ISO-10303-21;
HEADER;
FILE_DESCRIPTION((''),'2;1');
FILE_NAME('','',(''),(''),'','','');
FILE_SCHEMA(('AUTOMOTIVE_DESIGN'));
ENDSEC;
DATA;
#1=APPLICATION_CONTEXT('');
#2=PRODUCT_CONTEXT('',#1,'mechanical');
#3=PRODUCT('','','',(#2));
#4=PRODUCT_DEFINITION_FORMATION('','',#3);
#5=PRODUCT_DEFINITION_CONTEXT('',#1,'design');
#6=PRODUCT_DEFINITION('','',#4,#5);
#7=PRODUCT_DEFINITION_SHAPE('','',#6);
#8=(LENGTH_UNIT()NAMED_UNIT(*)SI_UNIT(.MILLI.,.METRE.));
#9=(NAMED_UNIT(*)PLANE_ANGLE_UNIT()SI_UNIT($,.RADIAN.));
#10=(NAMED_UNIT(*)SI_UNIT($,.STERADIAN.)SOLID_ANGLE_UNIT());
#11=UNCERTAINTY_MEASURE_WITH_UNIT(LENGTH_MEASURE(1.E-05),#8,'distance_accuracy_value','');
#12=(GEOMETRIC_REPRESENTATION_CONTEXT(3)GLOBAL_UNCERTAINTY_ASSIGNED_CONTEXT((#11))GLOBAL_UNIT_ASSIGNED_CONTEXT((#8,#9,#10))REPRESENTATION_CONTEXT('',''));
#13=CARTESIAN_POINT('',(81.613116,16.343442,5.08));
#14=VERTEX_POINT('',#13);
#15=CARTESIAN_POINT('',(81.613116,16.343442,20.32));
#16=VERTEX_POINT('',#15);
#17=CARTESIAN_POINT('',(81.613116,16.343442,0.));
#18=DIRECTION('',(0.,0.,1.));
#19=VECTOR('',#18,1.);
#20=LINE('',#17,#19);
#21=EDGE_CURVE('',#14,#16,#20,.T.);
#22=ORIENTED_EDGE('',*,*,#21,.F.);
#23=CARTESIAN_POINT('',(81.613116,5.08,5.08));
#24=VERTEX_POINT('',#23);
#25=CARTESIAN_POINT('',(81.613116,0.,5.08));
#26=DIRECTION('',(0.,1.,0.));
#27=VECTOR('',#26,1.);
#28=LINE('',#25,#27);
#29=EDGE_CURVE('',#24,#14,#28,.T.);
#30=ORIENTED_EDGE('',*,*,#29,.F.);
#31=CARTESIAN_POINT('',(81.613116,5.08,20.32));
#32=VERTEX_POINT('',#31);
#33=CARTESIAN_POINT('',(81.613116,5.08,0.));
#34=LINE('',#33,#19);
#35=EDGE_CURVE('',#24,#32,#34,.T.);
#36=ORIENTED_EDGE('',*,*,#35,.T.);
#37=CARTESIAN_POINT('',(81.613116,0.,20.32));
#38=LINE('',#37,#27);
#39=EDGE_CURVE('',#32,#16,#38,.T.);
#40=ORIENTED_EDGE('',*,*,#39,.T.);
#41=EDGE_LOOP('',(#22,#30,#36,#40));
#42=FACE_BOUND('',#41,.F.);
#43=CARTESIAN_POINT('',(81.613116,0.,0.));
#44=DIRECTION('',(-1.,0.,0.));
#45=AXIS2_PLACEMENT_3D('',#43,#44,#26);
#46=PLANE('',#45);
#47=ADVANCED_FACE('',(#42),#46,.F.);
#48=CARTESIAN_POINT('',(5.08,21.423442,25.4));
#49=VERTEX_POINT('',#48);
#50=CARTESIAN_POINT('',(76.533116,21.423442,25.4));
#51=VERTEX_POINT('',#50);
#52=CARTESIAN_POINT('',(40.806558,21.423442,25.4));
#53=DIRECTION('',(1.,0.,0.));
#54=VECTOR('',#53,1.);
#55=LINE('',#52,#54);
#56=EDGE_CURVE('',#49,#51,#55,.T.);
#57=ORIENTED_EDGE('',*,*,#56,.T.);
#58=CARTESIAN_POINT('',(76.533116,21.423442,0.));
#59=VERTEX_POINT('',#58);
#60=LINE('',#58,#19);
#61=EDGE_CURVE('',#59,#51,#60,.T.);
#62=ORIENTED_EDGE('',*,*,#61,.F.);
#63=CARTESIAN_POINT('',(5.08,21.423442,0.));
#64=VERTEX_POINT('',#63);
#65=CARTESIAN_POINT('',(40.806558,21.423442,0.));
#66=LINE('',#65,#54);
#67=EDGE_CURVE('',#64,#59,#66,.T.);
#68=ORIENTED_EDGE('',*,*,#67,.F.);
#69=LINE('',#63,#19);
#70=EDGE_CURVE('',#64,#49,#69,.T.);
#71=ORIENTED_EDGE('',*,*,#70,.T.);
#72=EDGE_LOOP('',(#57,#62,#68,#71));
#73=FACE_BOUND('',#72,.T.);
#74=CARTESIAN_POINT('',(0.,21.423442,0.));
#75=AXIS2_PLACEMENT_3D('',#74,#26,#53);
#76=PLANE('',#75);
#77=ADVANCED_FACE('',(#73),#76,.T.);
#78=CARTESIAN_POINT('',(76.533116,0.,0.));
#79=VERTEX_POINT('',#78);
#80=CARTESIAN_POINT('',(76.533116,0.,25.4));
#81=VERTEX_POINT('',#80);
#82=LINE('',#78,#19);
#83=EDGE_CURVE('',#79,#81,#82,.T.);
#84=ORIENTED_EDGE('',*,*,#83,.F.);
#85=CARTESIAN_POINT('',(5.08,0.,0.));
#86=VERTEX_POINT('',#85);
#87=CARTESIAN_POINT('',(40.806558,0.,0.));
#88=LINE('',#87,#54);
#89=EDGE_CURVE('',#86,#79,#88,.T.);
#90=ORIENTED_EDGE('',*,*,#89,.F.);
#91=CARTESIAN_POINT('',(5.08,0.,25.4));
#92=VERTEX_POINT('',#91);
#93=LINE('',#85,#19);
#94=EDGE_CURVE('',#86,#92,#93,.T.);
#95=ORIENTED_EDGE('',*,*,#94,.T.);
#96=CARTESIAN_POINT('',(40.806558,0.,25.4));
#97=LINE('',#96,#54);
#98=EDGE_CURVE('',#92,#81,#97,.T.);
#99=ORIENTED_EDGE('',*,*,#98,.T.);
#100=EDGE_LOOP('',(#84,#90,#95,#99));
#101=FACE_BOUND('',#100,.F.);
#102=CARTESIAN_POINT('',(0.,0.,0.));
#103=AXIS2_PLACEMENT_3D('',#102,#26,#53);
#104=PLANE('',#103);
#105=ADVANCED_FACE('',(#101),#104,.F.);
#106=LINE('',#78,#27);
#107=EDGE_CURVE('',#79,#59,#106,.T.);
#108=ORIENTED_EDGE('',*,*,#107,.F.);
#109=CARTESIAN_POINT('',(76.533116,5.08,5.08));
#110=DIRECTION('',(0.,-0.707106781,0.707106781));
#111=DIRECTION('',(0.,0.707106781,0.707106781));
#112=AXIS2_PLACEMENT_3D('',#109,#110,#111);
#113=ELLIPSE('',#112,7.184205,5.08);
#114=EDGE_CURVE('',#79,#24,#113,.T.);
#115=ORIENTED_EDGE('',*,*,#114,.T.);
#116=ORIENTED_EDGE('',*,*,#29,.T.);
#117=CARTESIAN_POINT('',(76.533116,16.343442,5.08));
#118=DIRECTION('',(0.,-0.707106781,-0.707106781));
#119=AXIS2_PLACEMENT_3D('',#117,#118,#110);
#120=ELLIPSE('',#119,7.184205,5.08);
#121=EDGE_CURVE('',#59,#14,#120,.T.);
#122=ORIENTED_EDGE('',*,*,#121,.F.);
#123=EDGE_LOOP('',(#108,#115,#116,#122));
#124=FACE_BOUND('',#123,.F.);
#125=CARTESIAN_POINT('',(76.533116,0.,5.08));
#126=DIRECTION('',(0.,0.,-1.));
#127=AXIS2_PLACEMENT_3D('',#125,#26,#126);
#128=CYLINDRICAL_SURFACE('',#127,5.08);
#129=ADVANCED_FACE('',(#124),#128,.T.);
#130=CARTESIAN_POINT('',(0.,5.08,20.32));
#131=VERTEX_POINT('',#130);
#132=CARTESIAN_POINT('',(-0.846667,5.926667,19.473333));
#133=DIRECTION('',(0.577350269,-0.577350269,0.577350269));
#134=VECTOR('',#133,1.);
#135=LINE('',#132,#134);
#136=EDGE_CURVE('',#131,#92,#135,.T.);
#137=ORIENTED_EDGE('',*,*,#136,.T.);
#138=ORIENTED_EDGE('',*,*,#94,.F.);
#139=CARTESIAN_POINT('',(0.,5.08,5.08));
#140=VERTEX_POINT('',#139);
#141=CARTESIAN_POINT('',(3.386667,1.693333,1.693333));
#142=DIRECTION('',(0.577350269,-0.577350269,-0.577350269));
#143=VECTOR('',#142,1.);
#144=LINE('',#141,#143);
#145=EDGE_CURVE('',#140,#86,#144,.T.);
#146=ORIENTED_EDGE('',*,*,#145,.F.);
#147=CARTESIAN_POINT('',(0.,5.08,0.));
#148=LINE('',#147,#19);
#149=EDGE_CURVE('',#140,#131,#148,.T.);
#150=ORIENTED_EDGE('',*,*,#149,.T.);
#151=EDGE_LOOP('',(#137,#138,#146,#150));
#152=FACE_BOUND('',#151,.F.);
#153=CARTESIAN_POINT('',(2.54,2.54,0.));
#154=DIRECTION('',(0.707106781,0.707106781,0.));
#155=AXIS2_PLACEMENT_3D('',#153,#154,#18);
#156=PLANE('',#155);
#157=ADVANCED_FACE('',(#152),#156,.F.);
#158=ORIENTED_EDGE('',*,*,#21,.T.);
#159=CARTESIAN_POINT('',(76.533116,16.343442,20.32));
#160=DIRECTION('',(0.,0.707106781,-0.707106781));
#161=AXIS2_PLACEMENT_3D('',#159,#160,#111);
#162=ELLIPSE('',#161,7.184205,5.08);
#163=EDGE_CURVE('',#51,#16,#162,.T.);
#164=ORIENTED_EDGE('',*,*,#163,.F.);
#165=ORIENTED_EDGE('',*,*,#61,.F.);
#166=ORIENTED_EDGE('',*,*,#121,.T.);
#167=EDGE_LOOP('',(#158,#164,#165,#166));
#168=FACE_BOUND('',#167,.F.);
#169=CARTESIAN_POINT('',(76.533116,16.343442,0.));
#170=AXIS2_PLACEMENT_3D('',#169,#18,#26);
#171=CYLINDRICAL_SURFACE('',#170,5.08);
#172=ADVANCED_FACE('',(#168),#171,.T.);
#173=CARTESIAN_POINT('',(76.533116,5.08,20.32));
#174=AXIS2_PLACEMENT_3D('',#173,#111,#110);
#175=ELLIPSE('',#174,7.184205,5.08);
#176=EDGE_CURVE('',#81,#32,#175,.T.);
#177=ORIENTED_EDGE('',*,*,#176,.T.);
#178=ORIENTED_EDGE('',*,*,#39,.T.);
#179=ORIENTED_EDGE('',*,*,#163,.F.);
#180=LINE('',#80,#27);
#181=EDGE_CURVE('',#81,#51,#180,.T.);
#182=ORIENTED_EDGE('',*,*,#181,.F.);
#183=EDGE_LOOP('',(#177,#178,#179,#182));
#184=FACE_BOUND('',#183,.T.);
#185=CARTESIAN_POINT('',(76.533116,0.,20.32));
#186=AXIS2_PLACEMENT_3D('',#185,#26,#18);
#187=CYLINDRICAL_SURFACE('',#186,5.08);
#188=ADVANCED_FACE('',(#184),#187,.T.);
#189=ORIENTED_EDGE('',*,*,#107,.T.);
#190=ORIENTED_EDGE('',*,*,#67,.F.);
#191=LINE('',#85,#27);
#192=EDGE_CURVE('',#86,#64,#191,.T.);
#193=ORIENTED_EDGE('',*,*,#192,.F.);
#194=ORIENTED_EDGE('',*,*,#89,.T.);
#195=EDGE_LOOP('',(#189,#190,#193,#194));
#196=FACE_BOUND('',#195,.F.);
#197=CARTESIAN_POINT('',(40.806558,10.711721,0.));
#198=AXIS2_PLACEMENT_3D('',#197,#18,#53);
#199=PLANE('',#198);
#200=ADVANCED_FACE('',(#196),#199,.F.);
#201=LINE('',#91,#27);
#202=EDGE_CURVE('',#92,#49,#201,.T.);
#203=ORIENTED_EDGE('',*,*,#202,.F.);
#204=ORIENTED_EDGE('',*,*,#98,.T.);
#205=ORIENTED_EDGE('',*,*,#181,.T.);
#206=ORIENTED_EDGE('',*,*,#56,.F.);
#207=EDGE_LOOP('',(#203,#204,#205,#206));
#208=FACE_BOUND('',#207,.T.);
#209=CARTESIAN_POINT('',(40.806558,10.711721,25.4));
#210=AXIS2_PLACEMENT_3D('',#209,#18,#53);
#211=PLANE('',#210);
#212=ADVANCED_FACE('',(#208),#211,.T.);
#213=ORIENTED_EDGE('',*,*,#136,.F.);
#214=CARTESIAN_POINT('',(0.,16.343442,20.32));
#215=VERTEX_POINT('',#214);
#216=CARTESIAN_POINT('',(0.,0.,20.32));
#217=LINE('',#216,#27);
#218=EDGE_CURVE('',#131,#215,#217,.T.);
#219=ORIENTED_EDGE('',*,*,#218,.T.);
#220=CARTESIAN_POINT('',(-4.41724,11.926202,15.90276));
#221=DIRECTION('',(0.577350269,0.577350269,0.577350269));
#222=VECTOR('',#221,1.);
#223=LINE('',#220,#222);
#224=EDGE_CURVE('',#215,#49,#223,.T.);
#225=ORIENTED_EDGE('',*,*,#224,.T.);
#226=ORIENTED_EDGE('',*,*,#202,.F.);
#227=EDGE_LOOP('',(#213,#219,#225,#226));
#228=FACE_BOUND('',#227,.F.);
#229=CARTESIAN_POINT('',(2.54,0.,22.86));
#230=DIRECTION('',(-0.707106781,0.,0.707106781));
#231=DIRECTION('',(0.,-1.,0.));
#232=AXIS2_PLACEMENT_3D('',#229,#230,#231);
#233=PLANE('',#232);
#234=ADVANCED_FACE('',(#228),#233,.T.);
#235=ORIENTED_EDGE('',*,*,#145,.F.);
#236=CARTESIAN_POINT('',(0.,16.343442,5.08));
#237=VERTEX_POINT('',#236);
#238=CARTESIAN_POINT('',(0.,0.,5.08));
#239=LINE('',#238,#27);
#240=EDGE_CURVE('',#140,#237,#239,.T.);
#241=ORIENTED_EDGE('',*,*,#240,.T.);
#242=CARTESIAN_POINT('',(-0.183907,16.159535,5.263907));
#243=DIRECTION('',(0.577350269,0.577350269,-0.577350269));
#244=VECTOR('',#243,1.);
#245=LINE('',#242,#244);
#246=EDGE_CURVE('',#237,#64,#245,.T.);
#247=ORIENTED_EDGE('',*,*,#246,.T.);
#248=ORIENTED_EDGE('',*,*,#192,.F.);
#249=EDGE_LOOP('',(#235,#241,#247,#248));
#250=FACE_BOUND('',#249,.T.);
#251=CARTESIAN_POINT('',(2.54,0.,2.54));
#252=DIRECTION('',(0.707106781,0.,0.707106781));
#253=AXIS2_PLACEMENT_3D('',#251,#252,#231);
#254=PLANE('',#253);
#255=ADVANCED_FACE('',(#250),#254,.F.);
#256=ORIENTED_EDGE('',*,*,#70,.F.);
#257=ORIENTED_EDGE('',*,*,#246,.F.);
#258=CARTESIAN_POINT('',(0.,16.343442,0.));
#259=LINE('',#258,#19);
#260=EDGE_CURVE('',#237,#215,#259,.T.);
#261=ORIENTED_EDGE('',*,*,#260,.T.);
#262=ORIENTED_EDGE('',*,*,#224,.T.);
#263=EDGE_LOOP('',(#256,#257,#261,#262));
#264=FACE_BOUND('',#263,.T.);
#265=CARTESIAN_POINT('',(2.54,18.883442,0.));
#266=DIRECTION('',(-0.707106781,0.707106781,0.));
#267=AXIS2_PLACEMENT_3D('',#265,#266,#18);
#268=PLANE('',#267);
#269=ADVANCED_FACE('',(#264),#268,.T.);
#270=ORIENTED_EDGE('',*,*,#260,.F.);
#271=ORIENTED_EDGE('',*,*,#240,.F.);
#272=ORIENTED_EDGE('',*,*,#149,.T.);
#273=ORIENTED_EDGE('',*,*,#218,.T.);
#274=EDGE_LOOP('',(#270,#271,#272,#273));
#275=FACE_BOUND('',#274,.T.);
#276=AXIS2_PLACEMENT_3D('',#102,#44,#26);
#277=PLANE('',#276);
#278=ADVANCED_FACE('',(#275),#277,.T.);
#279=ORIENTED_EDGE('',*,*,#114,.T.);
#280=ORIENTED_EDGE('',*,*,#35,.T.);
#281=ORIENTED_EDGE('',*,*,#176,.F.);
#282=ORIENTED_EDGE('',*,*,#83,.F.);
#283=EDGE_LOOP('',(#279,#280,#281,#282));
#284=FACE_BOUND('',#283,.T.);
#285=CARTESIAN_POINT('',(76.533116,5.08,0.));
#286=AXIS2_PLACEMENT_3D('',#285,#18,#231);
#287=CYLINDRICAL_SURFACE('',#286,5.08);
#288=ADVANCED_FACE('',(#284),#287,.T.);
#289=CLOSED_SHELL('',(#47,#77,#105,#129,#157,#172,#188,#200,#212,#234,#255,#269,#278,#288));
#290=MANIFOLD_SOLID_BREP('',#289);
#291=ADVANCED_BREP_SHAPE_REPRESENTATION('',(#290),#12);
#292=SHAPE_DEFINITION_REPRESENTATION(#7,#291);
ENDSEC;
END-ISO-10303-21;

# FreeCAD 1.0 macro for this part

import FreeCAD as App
import Part
import Sketcher
from FreeCAD import Vector


def edges_at(feature, points):
    """Names of the edges that pass closest to the given points."""
    edges = feature.Shape.Edges
    near = lambda p: min(range(len(edges)), key=lambda i: edges[i].distToShape(Part.Vertex(*p))[0])
    return sorted({f"Edge{near(p) + 1}" for p in points})

doc = App.newDocument("Part")
params = doc.addObject("Spreadsheet::Sheet", "Params")
for row, (alias, value) in enumerate([
    ("pad1_length", "1 in"),
    ("chamfer_size", "0.2 in"),
    ("fillet_radius", "0.2 in"),
], start=1):
    params.set(f"A{row}", alias)
    params.set(f"B{row}", "=" + value)
    params.setAlias(f"B{row}", alias)

body = doc.addObject("PartDesign::Body", "Body")

sketch1 = doc.addObject("Sketcher::SketchObject", "Sketch")
body.addObject(sketch1)
sketch1.AttachmentSupport = (doc.XY_Plane, [""])
sketch1.MapMode = "FlatFace"
sketch1.addGeometry([
    Part.LineSegment(Vector(0, 21.423442, 0), Vector(0, 0, 0)),
    Part.LineSegment(Vector(0, 0, 0), Vector(81.613116, 0, 0)),
    Part.LineSegment(Vector(81.613116, 0, 0), Vector(81.613116, 21.423442, 0)),
    Part.LineSegment(Vector(81.613116, 21.423442, 0), Vector(0, 21.423442, 0)),
], False)
sketch1.addConstraint([
    Sketcher.Constraint("Coincident", 0, 2, 1, 1),
    Sketcher.Constraint("Coincident", 1, 2, 2, 1),
    Sketcher.Constraint("Coincident", 2, 2, 3, 1),
    Sketcher.Constraint("Coincident", 3, 2, 0, 1),
    Sketcher.Constraint("Vertical", 0),
    Sketcher.Constraint("Horizontal", 1),
    Sketcher.Constraint("Vertical", 2),
    Sketcher.Constraint("Horizontal", 3),
    Sketcher.Constraint("Coincident", 0, 2, -1, 1),
    Sketcher.Constraint("DistanceX", 1, 1, 1, 2, 81.613116),
    Sketcher.Constraint("DistanceY", 0, 2, 0, 1, 21.423442),
])
pad1 = doc.addObject("PartDesign::Pad", "Pad")
body.addObject(pad1)
pad1.Profile = sketch1
pad1.setExpression("Length", "Params.pad1_length")
doc.recompute()

chamfer = doc.addObject("PartDesign::Chamfer", "Chamfer")
body.addObject(chamfer)
chamfer.Base = (pad1, edges_at(pad1, [
    (0, 10.712, 25.4),
    (0, 21.423, 12.7),
    (0, 0, 12.7),
    (0, 10.712, 0),
]))
chamfer.setExpression("Size", "Params.chamfer_size")
doc.recompute()

fillet = doc.addObject("PartDesign::Fillet", "Fillet")
body.addObject(fillet)
fillet.Base = (chamfer, edges_at(chamfer, [
    (81.613, 0, 12.7),
    (81.613, 21.423, 12.7),
    (81.613, 10.712, 0),
    (81.613, 10.712, 25.4),
]))
fillet.setExpression("Radius", "Params.fillet_radius")

doc.recompute()
